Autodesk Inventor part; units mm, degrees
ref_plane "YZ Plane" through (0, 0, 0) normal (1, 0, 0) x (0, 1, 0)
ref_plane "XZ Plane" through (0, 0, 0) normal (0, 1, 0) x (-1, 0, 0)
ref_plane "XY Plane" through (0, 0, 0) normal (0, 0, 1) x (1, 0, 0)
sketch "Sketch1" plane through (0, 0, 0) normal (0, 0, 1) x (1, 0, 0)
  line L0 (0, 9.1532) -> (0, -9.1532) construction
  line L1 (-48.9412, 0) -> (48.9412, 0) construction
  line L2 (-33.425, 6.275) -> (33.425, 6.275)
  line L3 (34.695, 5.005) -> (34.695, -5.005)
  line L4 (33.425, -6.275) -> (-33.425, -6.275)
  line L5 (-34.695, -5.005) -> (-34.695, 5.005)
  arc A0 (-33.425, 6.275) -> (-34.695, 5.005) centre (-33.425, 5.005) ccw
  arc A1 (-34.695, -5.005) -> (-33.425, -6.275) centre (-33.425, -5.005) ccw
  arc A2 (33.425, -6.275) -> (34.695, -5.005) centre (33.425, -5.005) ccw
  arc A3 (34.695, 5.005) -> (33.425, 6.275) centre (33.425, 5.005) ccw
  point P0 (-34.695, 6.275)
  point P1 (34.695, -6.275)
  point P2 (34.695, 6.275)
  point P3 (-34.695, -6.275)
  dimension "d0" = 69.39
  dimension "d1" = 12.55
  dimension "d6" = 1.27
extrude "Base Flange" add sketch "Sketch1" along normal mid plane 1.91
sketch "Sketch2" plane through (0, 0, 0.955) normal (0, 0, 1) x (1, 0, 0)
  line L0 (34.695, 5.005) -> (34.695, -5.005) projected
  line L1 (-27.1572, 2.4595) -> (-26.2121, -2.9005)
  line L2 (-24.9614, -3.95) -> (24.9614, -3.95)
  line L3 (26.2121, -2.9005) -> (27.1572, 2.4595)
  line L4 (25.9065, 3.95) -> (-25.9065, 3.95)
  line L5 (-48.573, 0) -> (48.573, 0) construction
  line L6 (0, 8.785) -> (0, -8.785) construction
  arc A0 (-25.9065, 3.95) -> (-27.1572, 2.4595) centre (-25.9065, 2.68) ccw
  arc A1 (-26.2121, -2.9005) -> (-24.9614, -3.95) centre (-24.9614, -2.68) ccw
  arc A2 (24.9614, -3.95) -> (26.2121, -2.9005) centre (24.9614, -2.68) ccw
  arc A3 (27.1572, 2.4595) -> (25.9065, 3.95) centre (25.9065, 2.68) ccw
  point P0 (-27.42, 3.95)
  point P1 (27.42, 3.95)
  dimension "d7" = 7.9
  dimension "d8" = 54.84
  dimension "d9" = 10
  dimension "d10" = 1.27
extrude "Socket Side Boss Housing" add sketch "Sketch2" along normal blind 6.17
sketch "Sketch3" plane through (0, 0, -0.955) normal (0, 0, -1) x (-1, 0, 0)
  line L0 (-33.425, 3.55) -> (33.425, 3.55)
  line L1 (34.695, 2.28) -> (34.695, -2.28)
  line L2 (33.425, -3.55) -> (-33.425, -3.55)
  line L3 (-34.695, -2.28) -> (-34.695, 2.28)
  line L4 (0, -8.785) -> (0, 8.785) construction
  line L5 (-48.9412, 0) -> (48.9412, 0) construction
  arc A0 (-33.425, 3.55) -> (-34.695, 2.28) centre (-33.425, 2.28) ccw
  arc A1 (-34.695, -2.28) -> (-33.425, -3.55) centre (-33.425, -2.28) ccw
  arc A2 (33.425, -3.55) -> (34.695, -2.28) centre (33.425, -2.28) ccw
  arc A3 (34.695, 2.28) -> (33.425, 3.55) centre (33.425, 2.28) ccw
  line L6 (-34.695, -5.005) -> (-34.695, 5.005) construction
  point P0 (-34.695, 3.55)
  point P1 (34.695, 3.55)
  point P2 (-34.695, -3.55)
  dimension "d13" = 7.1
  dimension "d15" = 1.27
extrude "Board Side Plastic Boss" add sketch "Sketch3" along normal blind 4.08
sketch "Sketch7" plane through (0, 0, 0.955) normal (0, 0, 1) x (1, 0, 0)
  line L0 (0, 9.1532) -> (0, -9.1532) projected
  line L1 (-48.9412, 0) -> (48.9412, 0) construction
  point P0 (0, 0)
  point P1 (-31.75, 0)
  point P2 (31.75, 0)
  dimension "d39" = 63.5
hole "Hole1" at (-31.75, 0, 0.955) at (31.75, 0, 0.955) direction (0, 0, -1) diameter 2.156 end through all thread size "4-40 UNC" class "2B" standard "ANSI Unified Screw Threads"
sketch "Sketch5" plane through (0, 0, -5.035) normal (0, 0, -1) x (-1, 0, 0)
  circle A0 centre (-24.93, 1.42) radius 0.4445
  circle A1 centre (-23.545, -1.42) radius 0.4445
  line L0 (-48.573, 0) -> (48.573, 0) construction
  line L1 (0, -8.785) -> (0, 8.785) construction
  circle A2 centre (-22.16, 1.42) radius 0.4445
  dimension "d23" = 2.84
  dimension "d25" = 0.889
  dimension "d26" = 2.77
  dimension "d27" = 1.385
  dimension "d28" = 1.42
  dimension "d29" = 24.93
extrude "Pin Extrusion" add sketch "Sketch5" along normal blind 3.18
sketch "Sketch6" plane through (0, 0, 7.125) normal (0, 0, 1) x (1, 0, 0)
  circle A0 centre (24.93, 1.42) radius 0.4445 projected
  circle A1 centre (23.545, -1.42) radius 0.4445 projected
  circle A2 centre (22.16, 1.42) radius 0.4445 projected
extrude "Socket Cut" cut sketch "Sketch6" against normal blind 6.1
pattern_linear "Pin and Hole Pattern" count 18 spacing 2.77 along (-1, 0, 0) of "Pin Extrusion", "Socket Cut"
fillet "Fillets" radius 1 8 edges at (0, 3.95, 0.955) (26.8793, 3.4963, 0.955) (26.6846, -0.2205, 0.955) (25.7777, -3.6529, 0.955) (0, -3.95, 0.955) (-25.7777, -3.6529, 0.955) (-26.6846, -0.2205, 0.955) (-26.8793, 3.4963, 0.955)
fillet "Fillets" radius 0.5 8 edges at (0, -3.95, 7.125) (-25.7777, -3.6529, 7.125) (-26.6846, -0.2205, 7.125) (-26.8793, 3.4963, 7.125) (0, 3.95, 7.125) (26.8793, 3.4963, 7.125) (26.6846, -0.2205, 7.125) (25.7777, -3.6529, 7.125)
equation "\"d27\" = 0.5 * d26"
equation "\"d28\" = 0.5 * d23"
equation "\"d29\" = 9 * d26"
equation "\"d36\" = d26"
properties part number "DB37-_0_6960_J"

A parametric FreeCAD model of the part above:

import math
import FreeCAD as App
import Part
import Sketcher
from FreeCAD import Vector
Q = App.Units.Quantity


def edges_at(feature, points):
    """Names of the edges that pass closest to the given points."""
    edges = feature.Shape.Edges
    near = lambda p: min(range(len(edges)), key=lambda i: edges[i].distToShape(Part.Vertex(*p))[0])
    return sorted({f"Edge{near(p) + 1}" for p in points})

doc = App.newDocument("Part")
body = doc.addObject("PartDesign::Body", "Body")

# Sketch on XY plane
sketch1 = body.newObject("Sketcher::SketchObject", "Sketch")
sketch1.AttachmentSupport = (doc.getObject("XY_Plane"), [""])
sketch1.MapMode = "FlatFace"
sketch1.addGeometry([
    Part.LineSegment(Vector(33.4, 6.3, 0), Vector(-33.4, 6.3, 0)),  # 0
    Part.ArcOfCircle(Part.Circle(Vector(-33.4, 5, 0), Vector(0, 0, 1), 1.3), math.radians(90), math.radians(180)),  # 1
    Part.LineSegment(Vector(-34.7, 5, 0), Vector(-34.7, -5, 0)),  # 2
    Part.ArcOfCircle(Part.Circle(Vector(-33.4, -5, 0), Vector(0, 0, 1), 1.3), math.radians(180), math.radians(270)),  # 3
    Part.LineSegment(Vector(-33.4, -6.3, 0), Vector(33.4, -6.3, 0)),  # 4
    Part.ArcOfCircle(Part.Circle(Vector(33.4, -5, 0), Vector(0, 0, 1), 1.3), math.radians(-90), math.radians(0)),  # 5
    Part.LineSegment(Vector(34.7, -5, 0), Vector(34.7, 5, 0)),  # 6
    Part.ArcOfCircle(Part.Circle(Vector(33.4, 5, 0), Vector(0, 0, 1), 1.3), math.radians(0), math.radians(90)),  # 7
], False)
sketch1.addConstraint([
    Sketcher.Constraint("Tangent", 0, 2, 1, 1),
    Sketcher.Constraint("Tangent", 1, 2, 2, 1),
    Sketcher.Constraint("Tangent", 2, 2, 3, 1),
    Sketcher.Constraint("Tangent", 3, 2, 4, 1),
    Sketcher.Constraint("Tangent", 4, 2, 5, 1),
    Sketcher.Constraint("Tangent", 5, 2, 6, 1),
    Sketcher.Constraint("Tangent", 6, 2, 7, 1),
    Sketcher.Constraint("Tangent", 7, 2, 0, 1),
    Sketcher.Constraint("Horizontal", 0),
    Sketcher.Constraint("Vertical", 2),
    Sketcher.Constraint("Horizontal", 4),
    Sketcher.Constraint("Vertical", 6),
    Sketcher.Constraint("Equal", 1, 3),
    Sketcher.Constraint("Equal", 3, 5),
    Sketcher.Constraint("Equal", 5, 7),
    Sketcher.Constraint("Symmetric", 1, 3, 5, 3, -1, 1),
    Sketcher.Constraint("Radius", 1, Q("1.27 mm")),
    Sketcher.Constraint("DistanceY", 3, 2, 0, 2, Q("12.55 mm")),
    Sketcher.Constraint("DistanceX", 0, 2, 0, 1, Q("66.85 mm")),
])
pad1 = body.newObject("PartDesign::Pad", "Pad")
pad1.Profile = sketch1
pad1.Length = 1.91
pad1.Midplane = True

# Sketch on XY plane
sketch2 = body.newObject("Sketcher::SketchObject", "Sketch001")
sketch2.AttachmentSupport = (doc.getObject("XY_Plane"), [""])
sketch2.MapMode = "FlatFace"
sketch2.AttachmentOffset = App.Placement(Vector(0, 0, 0.955), App.Rotation())
sketch2.addGeometry([
    Part.ArcOfCircle(Part.Circle(Vector(-25.9, 2.7, 0), Vector(0, 0, 1), 1.3), math.radians(90), math.radians(190)),  # 0
    Part.LineSegment(Vector(-27.2, 2.5, 0), Vector(-26.2, -2.9, 0)),  # 1
    Part.ArcOfCircle(Part.Circle(Vector(-25, -2.7, 0), Vector(0, 0, 1), 1.3), math.radians(-170), math.radians(-90)),  # 2
    Part.LineSegment(Vector(-25, -4, 0), Vector(25, -4, 0)),  # 3
    Part.ArcOfCircle(Part.Circle(Vector(25, -2.7, 0), Vector(0, 0, 1), 1.3), math.radians(-90), math.radians(-10)),  # 4
    Part.LineSegment(Vector(26.2, -2.9, 0), Vector(27.2, 2.5, 0)),  # 5
    Part.ArcOfCircle(Part.Circle(Vector(25.9, 2.7, 0), Vector(0, 0, 1), 1.3), math.radians(-10), math.radians(90)),  # 6
    Part.LineSegment(Vector(25.9, 4, 0), Vector(-25.9, 4, 0)),  # 7
], False)
sketch2.addConstraint([
    Sketcher.Constraint("Tangent", 0, 2, 1, 1),
    Sketcher.Constraint("Tangent", 1, 2, 2, 1),
    Sketcher.Constraint("Tangent", 2, 2, 3, 1),
    Sketcher.Constraint("Tangent", 3, 2, 4, 1),
    Sketcher.Constraint("Tangent", 4, 2, 5, 1),
    Sketcher.Constraint("Tangent", 5, 2, 6, 1),
    Sketcher.Constraint("Tangent", 6, 2, 7, 1),
    Sketcher.Constraint("Tangent", 7, 2, 0, 1),
    Sketcher.Constraint("Horizontal", 3),
    Sketcher.Constraint("Horizontal", 7),
    Sketcher.Constraint("Equal", 0, 2),
    Sketcher.Constraint("Equal", 2, 4),
    Sketcher.Constraint("Equal", 4, 6),
    Sketcher.Constraint("Symmetric", 1, 2, 4, 2, -2),
    Sketcher.Constraint("Radius", 0, Q("1.27 mm")),
    Sketcher.Constraint("DistanceY", 3, 2, 6, 2, Q("7.9 mm")),
    Sketcher.Constraint("Angle", 1, Q("-80.0001 deg")),
    Sketcher.Constraint("DistanceX", 7, 2, 7, 1, Q("51.813 mm")),
    Sketcher.Constraint("DistanceY", -1, 1, 0, 3, Q("2.68 mm")),
])
pad2 = body.newObject("PartDesign::Pad", "Pad001")
pad2.Profile = sketch2
pad2.Length = 6.17

# Sketch on XY plane
sketch3 = body.newObject("Sketcher::SketchObject", "Sketch002")
sketch3.AttachmentSupport = (doc.getObject("XY_Plane"), [""])
sketch3.MapMode = "FlatFace"
sketch3.AttachmentOffset = App.Placement(Vector(0, 0, -0.955), App.Rotation())
sketch3.addGeometry([
    Part.LineSegment(Vector(-33.4, 3.5, 0), Vector(33.4, 3.5, 0)),  # 0
    Part.ArcOfCircle(Part.Circle(Vector(33.4, 2.3, 0), Vector(0, 0, 1), 1.3), math.radians(0), math.radians(90)),  # 1
    Part.LineSegment(Vector(34.7, 2.3, 0), Vector(34.7, -2.3, 0)),  # 2
    Part.ArcOfCircle(Part.Circle(Vector(33.4, -2.3, 0), Vector(0, 0, 1), 1.3), math.radians(-90), math.radians(0)),  # 3
    Part.LineSegment(Vector(33.4, -3.5, 0), Vector(-33.4, -3.5, 0)),  # 4
    Part.ArcOfCircle(Part.Circle(Vector(-33.4, -2.3, 0), Vector(0, 0, 1), 1.3), math.radians(180), math.radians(270)),  # 5
    Part.LineSegment(Vector(-34.7, -2.3, 0), Vector(-34.7, 2.3, 0)),  # 6
    Part.ArcOfCircle(Part.Circle(Vector(-33.4, 2.3, 0), Vector(0, 0, 1), 1.3), math.radians(90), math.radians(180)),  # 7
], False)
sketch3.addConstraint([
    Sketcher.Constraint("Tangent", 0, 2, 1, 2),
    Sketcher.Constraint("Tangent", 1, 1, 2, 1),
    Sketcher.Constraint("Tangent", 2, 2, 3, 2),
    Sketcher.Constraint("Tangent", 3, 1, 4, 1),
    Sketcher.Constraint("Tangent", 4, 2, 5, 2),
    Sketcher.Constraint("Tangent", 5, 1, 6, 1),
    Sketcher.Constraint("Tangent", 6, 2, 7, 2),
    Sketcher.Constraint("Tangent", 7, 1, 0, 1),
    Sketcher.Constraint("Horizontal", 0),
    Sketcher.Constraint("Vertical", 2),
    Sketcher.Constraint("Horizontal", 4),
    Sketcher.Constraint("Vertical", 6),
    Sketcher.Constraint("Equal", 1, 3),
    Sketcher.Constraint("Equal", 3, 5),
    Sketcher.Constraint("Equal", 5, 7),
    Sketcher.Constraint("Symmetric", 1, 3, 5, 3, -1, 1),
    Sketcher.Constraint("Radius", 1, Q("1.27 mm")),
    Sketcher.Constraint("DistanceY", 3, 1, 0, 2, Q("7.1 mm")),
    Sketcher.Constraint("DistanceX", 0, 1, 0, 2, Q("66.85 mm")),
])
pad3 = body.newObject("PartDesign::Pad", "Pad002")
pad3.Profile = sketch3
pad3.Length = 4.08
pad3.Reversed = True

# Sketch on XY plane
sketch4 = body.newObject("Sketcher::SketchObject", "Sketch003")
sketch4.AttachmentSupport = (doc.getObject("XY_Plane"), [""])
sketch4.MapMode = "FlatFace"
sketch4.AttachmentOffset = App.Placement(Vector(0, 0, 0.955), App.Rotation())
sketch4.addGeometry([
    Part.Circle(Vector(-31.8, 0, 0), Vector(0, 0, 1), 1.1),
    Part.Circle(Vector(31.8, 0, 0), Vector(0, 0, 1), 1.1),
], False)
sketch4.addConstraint([
    Sketcher.Constraint("Equal", 0, 1),
    Sketcher.Constraint("Symmetric", 0, 3, 1, 3, -1, 1),
    Sketcher.Constraint("PointOnObject", 0, 3, -1),
    Sketcher.Constraint("Diameter", 0, Q("2.156 mm")),
    Sketcher.Constraint("DistanceX", 0, 3, 1, 3, Q("63.5 mm")),
])
doc.recompute()
hole = body.newObject("PartDesign::Hole", "Hole")
hole.Profile = sketch4
hole.ThreadType = "None"
hole.Diameter = 2.156
hole.DepthType = "ThroughAll"

# Sketch on XY plane
sketch5 = body.newObject("Sketcher::SketchObject", "Sketch004")
sketch5.AttachmentSupport = (doc.getObject("XY_Plane"), [""])
sketch5.MapMode = "FlatFace"
sketch5.AttachmentOffset = App.Placement(Vector(0, 0, -5.035), App.Rotation())
sketch5.addGeometry([
    Part.Circle(Vector(24.93, 1.42, 0), Vector(0, 0, 1), 0.44),
    Part.Circle(Vector(23.55, -1.42, 0), Vector(0, 0, 1), 0.44),
    Part.Circle(Vector(22.16, 1.42, 0), Vector(0, 0, 1), 0.44),
], False)
sketch5.addConstraint([
    Sketcher.Constraint("Equal", 0, 1),
    Sketcher.Constraint("Equal", 1, 2),
    Sketcher.Constraint("Horizontal", 0, 3, 2, 3),
    Sketcher.Constraint("Diameter", 0, Q("0.889 mm")),
    Sketcher.Constraint("DistanceX", -1, 1, 0, 3, Q("24.93 mm")),
    Sketcher.Constraint("DistanceY", -1, 1, 0, 3, Q("1.42 mm")),
    Sketcher.Constraint("DistanceY", 1, 3, -1, 1, Q("1.42 mm")),
    Sketcher.Constraint("DistanceX", 2, 3, 0, 3, Q("2.77 mm")),
    Sketcher.Constraint("DistanceX", 1, 3, 0, 3, Q("1.385 mm")),
])
pad4 = body.newObject("PartDesign::Pad", "Pad003")
pad4.Profile = sketch5
pad4.Length = 3.18
pad4.Reversed = True

# Sketch on XY plane
sketch6 = body.newObject("Sketcher::SketchObject", "Sketch005")
sketch6.AttachmentSupport = (doc.getObject("XY_Plane"), [""])
sketch6.MapMode = "FlatFace"
sketch6.AttachmentOffset = App.Placement(Vector(0, 0, 7.125), App.Rotation())
sketch6.addGeometry([
    Part.Circle(Vector(24.93, 1.42, 0), Vector(0, 0, 1), 0.44),
    Part.Circle(Vector(23.55, -1.42, 0), Vector(0, 0, 1), 0.44),
    Part.Circle(Vector(22.16, 1.42, 0), Vector(0, 0, 1), 0.44),
], False)
sketch6.addConstraint([
    Sketcher.Constraint("Equal", 0, 1),
    Sketcher.Constraint("Equal", 1, 2),
    Sketcher.Constraint("Horizontal", 0, 3, 2, 3),
    Sketcher.Constraint("Diameter", 0, Q("0.889 mm")),
    Sketcher.Constraint("DistanceX", -1, 1, 0, 3, Q("24.93 mm")),
    Sketcher.Constraint("DistanceY", -1, 1, 0, 3, Q("1.42 mm")),
    Sketcher.Constraint("DistanceY", 1, 3, -1, 1, Q("1.42 mm")),
    Sketcher.Constraint("DistanceX", -1, 1, 2, 3, Q("22.16 mm")),
    Sketcher.Constraint("DistanceX", -1, 1, 1, 3, Q("23.545 mm")),
])
pocket1 = body.newObject("PartDesign::Pocket", "Pocket")
pocket1.Profile = sketch6
pocket1.Length = 6.1
doc.recompute()

linearpattern = body.newObject("PartDesign::LinearPattern", "LinearPattern")
linearpattern.Originals = [pad4, pocket1]
linearpattern.Direction = (doc.getObject("X_Axis"), [""])
linearpattern.Mode = "offset"
linearpattern.Offset = 2.77
linearpattern.Occurrences = 18
linearpattern.Reversed = True
body.Tip = linearpattern
doc.recompute()

fillet = body.newObject("PartDesign::Fillet", "Fillet")
fillet.Base = (linearpattern, edges_at(linearpattern, [
    (0, 3.95, 0.955),
    (26.879, 3.496, 0.955),
    (26.685, -0.221, 0.955),
    (25.778, -3.653, 0.955),
    (0, -3.95, 0.955),
    (-25.778, -3.653, 0.955),
    (-26.685, -0.221, 0.955),
    (-26.879, 3.496, 0.955),
]))
fillet.Radius = 1
doc.recompute()

fillet2 = body.newObject("PartDesign::Fillet", "Fillet001")
fillet2.Base = (fillet, edges_at(fillet, [
    (0, -3.95, 7.125),
    (-25.778, -3.653, 7.125),
    (-26.685, -0.221, 7.125),
    (-26.879, 3.496, 7.125),
    (0, 3.95, 7.125),
    (26.879, 3.496, 7.125),
    (26.685, -0.221, 7.125),
    (25.778, -3.653, 7.125),
]))
fillet2.Radius = 0.5

doc.recompute()
